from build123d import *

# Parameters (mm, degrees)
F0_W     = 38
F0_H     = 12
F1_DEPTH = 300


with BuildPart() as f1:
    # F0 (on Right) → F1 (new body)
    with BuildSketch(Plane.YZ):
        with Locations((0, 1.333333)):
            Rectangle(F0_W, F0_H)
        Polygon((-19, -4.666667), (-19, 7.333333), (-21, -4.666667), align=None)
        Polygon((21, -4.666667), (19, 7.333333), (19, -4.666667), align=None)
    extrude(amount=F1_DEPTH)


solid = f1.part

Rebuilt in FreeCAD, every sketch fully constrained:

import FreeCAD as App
import Part
import Sketcher
from FreeCAD import Vector


def add_polygon(sketch, points):
    """Adds a closed chain of lines whose ends are joined by coincident constraints."""
    first, n = sketch.GeometryCount, len(points)
    for a, b in zip(points, points[1:] + points[:1]):
        sketch.addGeometry(Part.LineSegment(App.Vector(*a, 0), App.Vector(*b, 0)), False)
    for i in range(n):
        sketch.addConstraint(Sketcher.Constraint("Coincident", first + i, 2, first + (i + 1) % n, 1))

doc = App.newDocument("Part")
params = doc.addObject("Spreadsheet::Sheet", "Params")
for row, (alias, value) in enumerate([
    ("sketch1_width", "38 mm"),
    ("sketch1_width2", "42 mm"),
    ("pad1_length", "300 mm"),
], start=1):
    params.set(f"A{row}", alias)
    params.set(f"B{row}", "=" + value)
    params.setAlias(f"B{row}", alias)

body = doc.addObject("PartDesign::Body", "Body")

# Sketch on YZ plane
sketch1 = body.newObject("Sketcher::SketchObject", "Sketch")
sketch1.AttachmentSupport = (doc.getObject("YZ_Plane"), [""])
sketch1.MapMode = "FlatFace"
add_polygon(sketch1, [(19, 7), (-19, 7), (-21, -5), (21, -5)])  # lines 0-3
sketch1.addConstraint(Sketcher.Constraint("Horizontal", 0))
sketch1.addConstraint(Sketcher.Constraint("Horizontal", 2))
sketch1.addConstraint(Sketcher.Constraint("Equal", 1, 3))
sketch1.addConstraint(Sketcher.Constraint("DistanceX", 0, 2, 0, 1, 38.0))
sketch1.addConstraint(Sketcher.Constraint("DistanceX", 2, 1, 2, 2, 42.0))
sketch1.addConstraint(Sketcher.Constraint("DistanceX", 0, 2, -1, 1, 19.0))
sketch1.addConstraint(Sketcher.Constraint("DistanceY", 1, 2, 0, 2, 12.0))
sketch1.addConstraint(Sketcher.Constraint("DistanceY", -1, 1, 0, 2, 7.333333))
sketch1.setExpression("Constraints[7]", "Params.sketch1_width")
sketch1.setExpression("Constraints[8]", "Params.sketch1_width2")
pad1 = body.newObject("PartDesign::Pad", "Pad")
pad1.Profile = sketch1
pad1.setExpression("Length", "Params.pad1_length")

doc.recompute()
